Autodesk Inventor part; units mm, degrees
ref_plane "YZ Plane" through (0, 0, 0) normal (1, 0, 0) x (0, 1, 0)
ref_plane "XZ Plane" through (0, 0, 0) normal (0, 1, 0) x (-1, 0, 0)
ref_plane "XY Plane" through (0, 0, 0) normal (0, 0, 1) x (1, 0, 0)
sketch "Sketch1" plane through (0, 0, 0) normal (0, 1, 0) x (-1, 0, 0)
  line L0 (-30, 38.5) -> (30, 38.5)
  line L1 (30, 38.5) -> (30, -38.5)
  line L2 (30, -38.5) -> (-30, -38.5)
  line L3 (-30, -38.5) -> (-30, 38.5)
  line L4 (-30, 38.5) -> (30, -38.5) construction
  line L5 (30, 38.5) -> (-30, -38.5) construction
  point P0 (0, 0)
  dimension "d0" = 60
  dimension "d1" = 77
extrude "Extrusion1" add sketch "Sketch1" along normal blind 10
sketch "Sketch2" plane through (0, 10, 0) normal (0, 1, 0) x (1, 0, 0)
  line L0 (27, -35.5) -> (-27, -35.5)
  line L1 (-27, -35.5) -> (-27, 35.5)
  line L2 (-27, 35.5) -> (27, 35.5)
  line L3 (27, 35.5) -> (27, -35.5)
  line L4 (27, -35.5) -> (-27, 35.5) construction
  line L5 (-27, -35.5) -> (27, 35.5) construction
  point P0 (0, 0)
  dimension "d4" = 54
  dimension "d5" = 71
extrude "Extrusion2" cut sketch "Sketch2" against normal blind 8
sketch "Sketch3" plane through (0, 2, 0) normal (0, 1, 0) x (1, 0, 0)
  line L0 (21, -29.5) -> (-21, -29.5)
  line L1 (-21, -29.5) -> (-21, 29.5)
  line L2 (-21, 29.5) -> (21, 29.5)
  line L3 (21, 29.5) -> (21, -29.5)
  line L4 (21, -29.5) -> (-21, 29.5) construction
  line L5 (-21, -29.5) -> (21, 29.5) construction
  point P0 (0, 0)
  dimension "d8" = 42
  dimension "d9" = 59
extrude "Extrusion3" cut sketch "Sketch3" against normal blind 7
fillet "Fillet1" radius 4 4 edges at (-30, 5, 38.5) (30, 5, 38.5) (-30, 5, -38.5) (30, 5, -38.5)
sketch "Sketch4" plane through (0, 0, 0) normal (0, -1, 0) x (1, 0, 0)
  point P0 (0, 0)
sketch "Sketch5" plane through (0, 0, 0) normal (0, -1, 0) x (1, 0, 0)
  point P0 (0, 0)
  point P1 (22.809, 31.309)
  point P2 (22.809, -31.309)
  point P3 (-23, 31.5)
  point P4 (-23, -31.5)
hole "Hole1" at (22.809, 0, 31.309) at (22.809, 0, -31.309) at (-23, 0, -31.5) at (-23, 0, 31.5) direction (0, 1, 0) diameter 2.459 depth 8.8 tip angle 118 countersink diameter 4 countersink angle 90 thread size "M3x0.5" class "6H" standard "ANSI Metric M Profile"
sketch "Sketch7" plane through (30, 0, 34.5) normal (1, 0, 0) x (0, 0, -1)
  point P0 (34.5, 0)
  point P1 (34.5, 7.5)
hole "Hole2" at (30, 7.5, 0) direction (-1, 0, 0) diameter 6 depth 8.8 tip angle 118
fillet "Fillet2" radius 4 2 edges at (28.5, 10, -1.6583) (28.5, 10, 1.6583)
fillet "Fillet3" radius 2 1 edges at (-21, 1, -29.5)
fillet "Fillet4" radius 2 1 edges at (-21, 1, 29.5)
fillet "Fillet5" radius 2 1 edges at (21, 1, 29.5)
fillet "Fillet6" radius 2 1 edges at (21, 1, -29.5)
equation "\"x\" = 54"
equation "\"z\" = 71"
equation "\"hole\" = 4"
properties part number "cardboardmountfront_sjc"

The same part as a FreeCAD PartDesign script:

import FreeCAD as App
import Part
import Sketcher
from FreeCAD import Vector
Q = App.Units.Quantity


def edges_at(feature, points):
    """Names of the edges that pass closest to the given points."""
    edges = feature.Shape.Edges
    near = lambda p: min(range(len(edges)), key=lambda i: edges[i].distToShape(Part.Vertex(*p))[0])
    return sorted({f"Edge{near(p) + 1}" for p in points})

doc = App.newDocument("Part")
body = doc.addObject("PartDesign::Body", "Body")

# Sketch on XZ plane
sketch1 = body.newObject("Sketcher::SketchObject", "Sketch")
sketch1.AttachmentSupport = (doc.getObject("XZ_Plane"), [""])
sketch1.MapMode = "FlatFace"
sketch1.addGeometry([
    Part.LineSegment(Vector(-30, 38, 0), Vector(30, 38, 0)),
    Part.LineSegment(Vector(30, 38, 0), Vector(30, -38, 0)),
    Part.LineSegment(Vector(30, -38, 0), Vector(-30, -38, 0)),
    Part.LineSegment(Vector(-30, -38, 0), Vector(-30, 38, 0)),
], False)
sketch1.addConstraint([
    Sketcher.Constraint("Coincident", 0, 2, 1, 1),
    Sketcher.Constraint("Coincident", 1, 2, 2, 1),
    Sketcher.Constraint("Coincident", 2, 2, 3, 1),
    Sketcher.Constraint("Coincident", 3, 2, 0, 1),
    Sketcher.Constraint("Horizontal", 0),
    Sketcher.Constraint("Vertical", 1),
    Sketcher.Constraint("Horizontal", 2),
    Sketcher.Constraint("Vertical", 3),
    Sketcher.Constraint("Symmetric", 0, 2, 2, 2, -1, 1),
    Sketcher.Constraint("DistanceX", 0, 1, 0, 2, Q("60 mm")),
    Sketcher.Constraint("DistanceY", 1, 2, 1, 1, Q("77 mm")),
])
pad1 = body.newObject("PartDesign::Pad", "Pad")
pad1.Profile = sketch1
pad1.Length = 10
pad1.Reversed = True

# Sketch on XZ plane
sketch2 = body.newObject("Sketcher::SketchObject", "Sketch001")
sketch2.AttachmentSupport = (doc.getObject("XZ_Plane"), [""])
sketch2.MapMode = "FlatFace"
sketch2.AttachmentOffset = App.Placement(Vector(0, 0, -10), App.Rotation())
sketch2.addGeometry([
    Part.LineSegment(Vector(-27, 36, 0), Vector(27, 36, 0)),
    Part.LineSegment(Vector(27, 36, 0), Vector(27, -36, 0)),
    Part.LineSegment(Vector(27, -36, 0), Vector(-27, -36, 0)),
    Part.LineSegment(Vector(-27, -36, 0), Vector(-27, 36, 0)),
], False)
sketch2.addConstraint([
    Sketcher.Constraint("Coincident", 0, 2, 1, 1),
    Sketcher.Constraint("Coincident", 1, 2, 2, 1),
    Sketcher.Constraint("Coincident", 2, 2, 3, 1),
    Sketcher.Constraint("Coincident", 3, 2, 0, 1),
    Sketcher.Constraint("Horizontal", 0),
    Sketcher.Constraint("Vertical", 1),
    Sketcher.Constraint("Horizontal", 2),
    Sketcher.Constraint("Vertical", 3),
    Sketcher.Constraint("Symmetric", 0, 2, 2, 2, -1, 1),
    Sketcher.Constraint("DistanceX", 0, 1, 0, 2, Q("54 mm")),
    Sketcher.Constraint("DistanceY", 1, 2, 1, 1, Q("71 mm")),
])
pocket1 = body.newObject("PartDesign::Pocket", "Pocket")
pocket1.Profile = sketch2
pocket1.Length = 8
pocket1.Reversed = True

# Sketch on XZ plane
sketch3 = body.newObject("Sketcher::SketchObject", "Sketch002")
sketch3.AttachmentSupport = (doc.getObject("XZ_Plane"), [""])
sketch3.MapMode = "FlatFace"
sketch3.AttachmentOffset = App.Placement(Vector(0, 0, -2), App.Rotation())
sketch3.addGeometry([
    Part.LineSegment(Vector(-21, 30, 0), Vector(21, 30, 0)),
    Part.LineSegment(Vector(21, 30, 0), Vector(21, -30, 0)),
    Part.LineSegment(Vector(21, -30, 0), Vector(-21, -30, 0)),
    Part.LineSegment(Vector(-21, -30, 0), Vector(-21, 30, 0)),
], False)
sketch3.addConstraint([
    Sketcher.Constraint("Coincident", 0, 2, 1, 1),
    Sketcher.Constraint("Coincident", 1, 2, 2, 1),
    Sketcher.Constraint("Coincident", 2, 2, 3, 1),
    Sketcher.Constraint("Coincident", 3, 2, 0, 1),
    Sketcher.Constraint("Horizontal", 0),
    Sketcher.Constraint("Vertical", 1),
    Sketcher.Constraint("Horizontal", 2),
    Sketcher.Constraint("Vertical", 3),
    Sketcher.Constraint("Symmetric", 0, 2, 2, 2, -1, 1),
    Sketcher.Constraint("DistanceX", 0, 1, 0, 2, Q("42 mm")),
    Sketcher.Constraint("DistanceY", 1, 2, 1, 1, Q("59 mm")),
])
pocket2 = body.newObject("PartDesign::Pocket", "Pocket001")
pocket2.Profile = sketch3
pocket2.Length = 7
pocket2.Reversed = True
doc.recompute()

fillet = body.newObject("PartDesign::Fillet", "Fillet")
fillet.Base = (pocket2, edges_at(pocket2, [
    (-30, 5, 38.5),
    (30, 5, 38.5),
    (-30, 5, -38.5),
    (30, 5, -38.5),
]))
fillet.Radius = 4

# Sketch on XZ plane
sketch4 = body.newObject("Sketcher::SketchObject", "Sketch003")
sketch4.AttachmentSupport = (doc.getObject("XZ_Plane"), [""])
sketch4.MapMode = "FlatFace"
sketch4.addGeometry([
    Part.Circle(Vector(22.8, 31.3, 0), Vector(0, 0, 1), 1.2),
    Part.Circle(Vector(22.8, -31.3, 0), Vector(0, 0, 1), 1.2),
    Part.Circle(Vector(-23, -31.5, 0), Vector(0, 0, 1), 1.2),
    Part.Circle(Vector(-23, 31.5, 0), Vector(0, 0, 1), 1.2),
], False)
sketch4.addConstraint([
    Sketcher.Constraint("Equal", 0, 1),
    Sketcher.Constraint("Equal", 1, 2),
    Sketcher.Constraint("Equal", 2, 3),
    Sketcher.Constraint("Symmetric", 0, 3, 1, 3, -1),
    Sketcher.Constraint("Symmetric", 2, 3, 3, 3, -1),
    Sketcher.Constraint("Diameter", 0, Q("2.459 mm")),
    Sketcher.Constraint("DistanceX", 2, 3, -1, 1, Q("23 mm")),
    Sketcher.Constraint("DistanceY", 2, 3, 3, 3, Q("63 mm")),
    Sketcher.Constraint("DistanceX", -1, 1, 0, 3, Q("22.809 mm")),
    Sketcher.Constraint("DistanceY", -1, 1, 0, 3, Q("31.309 mm")),
])
doc.recompute()
hole = body.newObject("PartDesign::Hole", "Hole")
hole.Profile = sketch4
hole.ThreadType = "None"
hole.Diameter = 2.459
hole.DepthType = "Dimension"
hole.Depth = 8.8
hole.DrillPoint = "Angled"
hole.DrillPointAngle = 118
hole.HoleCutType = "Countersink"
hole.HoleCutDiameter = 4
hole.HoleCutCountersinkAngle = 90

# Sketch on YZ plane
sketch5 = body.newObject("Sketcher::SketchObject", "Sketch004")
sketch5.AttachmentSupport = (doc.getObject("YZ_Plane"), [""])
sketch5.MapMode = "FlatFace"
sketch5.AttachmentOffset = App.Placement(Vector(0, 0, 30), App.Rotation())
sketch5.addGeometry(Part.Circle(Vector(7.5, 0, 0), Vector(0, 0, 1), 3), False)
sketch5.addConstraint([
    Sketcher.Constraint("PointOnObject", 0, 3, -1),
    Sketcher.Constraint("Diameter", 0, Q("6 mm")),
    Sketcher.Constraint("DistanceX", -1, 1, 0, 3, Q("7.5 mm")),
])
doc.recompute()
hole2 = body.newObject("PartDesign::Hole", "Hole001")
hole2.Profile = sketch5
hole2.ThreadType = "None"
hole2.Diameter = 6
hole2.DepthType = "Dimension"
hole2.Depth = 8.8
hole2.DrillPoint = "Angled"
hole2.DrillPointAngle = 118
doc.recompute()

fillet2 = body.newObject("PartDesign::Fillet", "Fillet001")
fillet2.Base = (hole2, edges_at(hole2, [(28.5, 10, -1.658), (28.5, 10, 1.658)]))
fillet2.Radius = 4
doc.recompute()

fillet3 = body.newObject("PartDesign::Fillet", "Fillet002")
fillet3.Base = (fillet2, edges_at(fillet2, [(-21, 1, -29.5)]))
fillet3.Radius = 2
doc.recompute()

fillet4 = body.newObject("PartDesign::Fillet", "Fillet003")
fillet4.Base = (fillet3, edges_at(fillet3, [(-21, 1, 29.5)]))
fillet4.Radius = 2
doc.recompute()

fillet5 = body.newObject("PartDesign::Fillet", "Fillet004")
fillet5.Base = (fillet4, edges_at(fillet4, [(21, 1, 29.5)]))
fillet5.Radius = 2
doc.recompute()

fillet6 = body.newObject("PartDesign::Fillet", "Fillet005")
fillet6.Base = (fillet5, edges_at(fillet5, [(21, 1, -29.5)]))
fillet6.Radius = 2

doc.recompute()
